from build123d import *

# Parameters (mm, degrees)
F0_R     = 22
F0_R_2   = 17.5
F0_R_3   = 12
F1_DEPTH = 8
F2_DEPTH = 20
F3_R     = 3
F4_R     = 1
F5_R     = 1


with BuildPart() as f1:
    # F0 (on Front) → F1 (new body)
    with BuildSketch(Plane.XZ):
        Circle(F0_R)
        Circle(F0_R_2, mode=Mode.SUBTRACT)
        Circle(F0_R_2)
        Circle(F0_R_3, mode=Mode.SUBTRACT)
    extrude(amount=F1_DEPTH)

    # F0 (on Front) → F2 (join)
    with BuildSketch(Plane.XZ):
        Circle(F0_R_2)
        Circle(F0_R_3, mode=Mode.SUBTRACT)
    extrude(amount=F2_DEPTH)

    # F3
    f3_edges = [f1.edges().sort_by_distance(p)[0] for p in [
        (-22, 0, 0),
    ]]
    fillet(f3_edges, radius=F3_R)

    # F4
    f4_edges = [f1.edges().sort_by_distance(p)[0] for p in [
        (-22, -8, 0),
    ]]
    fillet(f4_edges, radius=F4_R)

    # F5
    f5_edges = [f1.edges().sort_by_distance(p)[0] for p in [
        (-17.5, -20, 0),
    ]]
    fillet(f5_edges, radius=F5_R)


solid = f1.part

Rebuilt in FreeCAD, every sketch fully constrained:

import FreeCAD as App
import Part
import Sketcher
from FreeCAD import Vector


def edges_at(feature, points):
    """Names of the edges that pass closest to the given points."""
    edges = feature.Shape.Edges
    near = lambda p: min(range(len(edges)), key=lambda i: edges[i].distToShape(Part.Vertex(*p))[0])
    return sorted({f"Edge{near(p) + 1}" for p in points})

doc = App.newDocument("Part")
body = doc.addObject("PartDesign::Body", "Body")

# Sketch on XZ plane
sketch1 = body.newObject("Sketcher::SketchObject", "Sketch")
sketch1.AttachmentSupport = (doc.getObject("XZ_Plane"), [""])
sketch1.MapMode = "FlatFace"
sketch1.addGeometry([
    Part.Circle(Vector(0, 0, 0), Vector(0, 0, 1), 22),
    Part.Circle(Vector(0, 0, 0), Vector(0, 0, 1), 12),
], False)
sketch1.addConstraint([
    Sketcher.Constraint("Coincident", 0, 3, -1, 1),
    Sketcher.Constraint("Coincident", 1, 3, -1, 1),
    Sketcher.Constraint("Diameter", 0, 44.0),
    Sketcher.Constraint("Diameter", 1, 24.0),
])
pad1 = body.newObject("PartDesign::Pad", "Pad")
pad1.Profile = sketch1
pad1.Length = 8

# Sketch on XZ plane
sketch2 = body.newObject("Sketcher::SketchObject", "Sketch001")
sketch2.AttachmentSupport = (doc.getObject("XZ_Plane"), [""])
sketch2.MapMode = "FlatFace"
sketch2.addGeometry([
    Part.Circle(Vector(0, 0, 0), Vector(0, 0, 1), 18),
    Part.Circle(Vector(0, 0, 0), Vector(0, 0, 1), 12),
], False)
sketch2.addConstraint([
    Sketcher.Constraint("Coincident", 0, 3, -1, 1),
    Sketcher.Constraint("Coincident", 1, 3, -1, 1),
    Sketcher.Constraint("Diameter", 0, 35.0),
    Sketcher.Constraint("Diameter", 1, 24.0),
])
pad2 = body.newObject("PartDesign::Pad", "Pad001")
pad2.Profile = sketch2
pad2.Length = 20
doc.recompute()

fillet = body.newObject("PartDesign::Fillet", "Fillet")
fillet.Base = (pad2, edges_at(pad2, [(-22, 0, 0)]))
fillet.Radius = 3
doc.recompute()

fillet2 = body.newObject("PartDesign::Fillet", "Fillet001")
fillet2.Base = (fillet, edges_at(fillet, [(-22, -8, 0)]))
fillet2.Radius = 1
doc.recompute()

fillet3 = body.newObject("PartDesign::Fillet", "Fillet002")
fillet3.Base = (fillet2, edges_at(fillet2, [(-17.5, -20, 0)]))
fillet3.Radius = 1

doc.recompute()
